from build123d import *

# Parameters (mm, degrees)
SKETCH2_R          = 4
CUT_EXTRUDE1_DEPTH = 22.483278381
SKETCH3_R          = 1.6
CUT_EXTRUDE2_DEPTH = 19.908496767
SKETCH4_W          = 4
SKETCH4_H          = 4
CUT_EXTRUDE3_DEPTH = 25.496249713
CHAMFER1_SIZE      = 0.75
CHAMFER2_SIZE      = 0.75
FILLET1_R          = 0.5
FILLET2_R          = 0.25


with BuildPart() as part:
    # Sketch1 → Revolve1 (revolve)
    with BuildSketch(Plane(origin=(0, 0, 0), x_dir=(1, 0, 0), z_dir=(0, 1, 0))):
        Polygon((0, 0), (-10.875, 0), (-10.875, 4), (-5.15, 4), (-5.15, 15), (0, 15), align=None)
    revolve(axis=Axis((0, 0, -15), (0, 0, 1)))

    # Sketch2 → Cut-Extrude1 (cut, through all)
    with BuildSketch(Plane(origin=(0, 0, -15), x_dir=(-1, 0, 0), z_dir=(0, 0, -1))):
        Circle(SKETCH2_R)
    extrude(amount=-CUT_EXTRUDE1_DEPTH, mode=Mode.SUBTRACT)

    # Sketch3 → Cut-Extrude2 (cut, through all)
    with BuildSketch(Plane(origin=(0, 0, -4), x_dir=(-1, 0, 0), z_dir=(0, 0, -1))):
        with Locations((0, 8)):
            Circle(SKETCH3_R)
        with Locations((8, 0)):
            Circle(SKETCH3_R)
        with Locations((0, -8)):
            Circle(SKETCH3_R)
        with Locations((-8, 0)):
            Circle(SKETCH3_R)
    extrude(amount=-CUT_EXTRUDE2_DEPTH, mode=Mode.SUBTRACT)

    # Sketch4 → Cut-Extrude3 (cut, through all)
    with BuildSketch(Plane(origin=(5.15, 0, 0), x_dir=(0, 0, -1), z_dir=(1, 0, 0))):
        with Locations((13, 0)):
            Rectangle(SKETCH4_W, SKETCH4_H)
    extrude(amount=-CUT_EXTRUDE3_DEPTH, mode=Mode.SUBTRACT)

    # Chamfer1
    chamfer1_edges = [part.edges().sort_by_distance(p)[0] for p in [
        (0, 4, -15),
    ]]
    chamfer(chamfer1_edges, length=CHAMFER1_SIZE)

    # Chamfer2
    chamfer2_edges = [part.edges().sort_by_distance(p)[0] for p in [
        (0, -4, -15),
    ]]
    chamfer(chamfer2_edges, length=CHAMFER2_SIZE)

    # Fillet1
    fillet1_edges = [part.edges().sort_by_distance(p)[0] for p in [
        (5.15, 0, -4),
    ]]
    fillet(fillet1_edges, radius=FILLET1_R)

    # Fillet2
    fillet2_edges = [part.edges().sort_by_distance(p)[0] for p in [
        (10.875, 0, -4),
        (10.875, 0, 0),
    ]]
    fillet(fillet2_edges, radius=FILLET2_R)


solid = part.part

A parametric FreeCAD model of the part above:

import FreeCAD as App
import Part
import Sketcher


def edges_at(feature, points):
    """Names of the edges that pass closest to the given points."""
    edges = feature.Shape.Edges
    near = lambda p: min(range(len(edges)), key=lambda i: edges[i].distToShape(Part.Vertex(*p))[0])
    return sorted({f"Edge{near(p) + 1}" for p in points})


def add_polygon(sketch, points):
    """Adds a closed chain of lines whose ends are joined by coincident constraints."""
    first, n = sketch.GeometryCount, len(points)
    for a, b in zip(points, points[1:] + points[:1]):
        sketch.addGeometry(Part.LineSegment(App.Vector(*a, 0), App.Vector(*b, 0)), False)
    for i in range(n):
        sketch.addConstraint(Sketcher.Constraint("Coincident", first + i, 2, first + (i + 1) % n, 1))

doc = App.newDocument("Part")
body = doc.addObject("PartDesign::Body", "Body")

sketch1 = body.newObject("Sketcher::SketchObject", "Sketch")
sketch1.AttachmentSupport = (doc.getObject("XZ_Plane"), [""])
sketch1.MapMode = "FlatFace"
add_polygon(sketch1, [(-10.875, 0), (0, 0), (0, -15), (-5.15, -15), (-5.15, -4), (-10.875, -4)])
sketch1.addConstraint(Sketcher.Constraint("Horizontal", 0))
sketch1.addConstraint(Sketcher.Constraint("Vertical", 1))
sketch1.addConstraint(Sketcher.Constraint("Horizontal", 2))
sketch1.addConstraint(Sketcher.Constraint("Vertical", 3))
sketch1.addConstraint(Sketcher.Constraint("Horizontal", 4))
sketch1.addConstraint(Sketcher.Constraint("Vertical", 5))
sketch1.addConstraint(Sketcher.Constraint("Coincident", 0, 2, -1, 1))
sketch1.addConstraint(Sketcher.Constraint("DistanceY", 1, 2, 1, 1, 15.0))
sketch1.addConstraint(Sketcher.Constraint("DistanceY", 3, 1, 3, 2, 11.0))
sketch1.addConstraint(Sketcher.Constraint("DistanceX", 2, 2, 2, 1, 5.15))
sketch1.addConstraint(Sketcher.Constraint("DistanceX", 0, 1, 0, 2, 10.875))
revolution = body.newObject("PartDesign::Revolution", "Revolution")
revolution.Profile = sketch1
revolution.ReferenceAxis = (sketch1, ["V_Axis"])
revolution.Angle = 360

sketch2 = body.newObject("Sketcher::SketchObject", "Sketch001")
sketch2.AttachmentSupport = (doc.getObject("XY_Plane"), [""])
sketch2.MapMode = "FlatFace"
sketch2.AttachmentOffset = App.Placement(App.Vector(0, 0, -15), App.Rotation())
sketch2.addGeometry(Part.Circle(App.Vector(0, 0, 0), App.Vector(0, 0, 1), 4), False)
sketch2.addConstraint(Sketcher.Constraint("Coincident", 0, 3, -1, 1))
sketch2.addConstraint(Sketcher.Constraint("Diameter", 0, 8.0))
pocket1 = body.newObject("PartDesign::Pocket", "Pocket")
pocket1.Profile = sketch2
pocket1.Type = "ThroughAll"
pocket1.Reversed = True

sketch3 = body.newObject("Sketcher::SketchObject", "Sketch002")
sketch3.AttachmentSupport = (doc.getObject("XY_Plane"), [""])
sketch3.MapMode = "FlatFace"
sketch3.AttachmentOffset = App.Placement(App.Vector(0, 0, -4), App.Rotation())
sketch3.addGeometry(Part.Circle(App.Vector(0, 8, 0), App.Vector(0, 0, 1), 1.6), False)
sketch3.addGeometry(Part.Circle(App.Vector(-8, 0, 0), App.Vector(0, 0, 1), 1.6), False)
sketch3.addGeometry(Part.Circle(App.Vector(0, -8, 0), App.Vector(0, 0, 1), 1.6), False)
sketch3.addGeometry(Part.Circle(App.Vector(8, 0, 0), App.Vector(0, 0, 1), 1.6), False)
sketch3.addConstraint(Sketcher.Constraint("Equal", 0, 1))
sketch3.addConstraint(Sketcher.Constraint("Equal", 1, 2))
sketch3.addConstraint(Sketcher.Constraint("Equal", 2, 3))
sketch3.addConstraint(Sketcher.Constraint("Symmetric", 0, 3, 2, 3, -1, 1))
sketch3.addConstraint(Sketcher.Constraint("Symmetric", 1, 3, 3, 3, -1, 1))
sketch3.addConstraint(Sketcher.Constraint("PointOnObject", 0, 3, -2))
sketch3.addConstraint(Sketcher.Constraint("PointOnObject", 1, 3, -1))
sketch3.addConstraint(Sketcher.Constraint("Diameter", 0, 3.2))
sketch3.addConstraint(Sketcher.Constraint("DistanceY", -1, 1, 0, 3, 8.0))
sketch3.addConstraint(Sketcher.Constraint("DistanceX", 1, 3, -1, 1, 8.0))
pocket2 = body.newObject("PartDesign::Pocket", "Pocket001")
pocket2.Profile = sketch3
pocket2.Type = "ThroughAll"
pocket2.Reversed = True

sketch4 = body.newObject("Sketcher::SketchObject", "Sketch003")
sketch4.AttachmentSupport = (doc.getObject("YZ_Plane"), [""])
sketch4.MapMode = "FlatFace"
sketch4.AttachmentOffset = App.Placement(App.Vector(0, 0, 5.15), App.Rotation())
add_polygon(sketch4, [(2, -11), (-2, -11), (-2, -15), (2, -15)])
sketch4.addConstraint(Sketcher.Constraint("Horizontal", 0))
sketch4.addConstraint(Sketcher.Constraint("Vertical", 1))
sketch4.addConstraint(Sketcher.Constraint("Horizontal", 2))
sketch4.addConstraint(Sketcher.Constraint("Vertical", 3))
sketch4.addConstraint(Sketcher.Constraint("Equal", 2, 1))
sketch4.addConstraint(Sketcher.Constraint("DistanceX", 0, 2, 0, 1, 4.0))
sketch4.addConstraint(Sketcher.Constraint("DistanceX", 0, 2, -1, 1, 2.0))
sketch4.addConstraint(Sketcher.Constraint("DistanceY", 0, 2, -1, 1, 11.0))
pocket3 = body.newObject("PartDesign::Pocket", "Pocket002")
pocket3.Profile = sketch4
pocket3.Type = "ThroughAll"
doc.recompute()

chamfer = body.newObject("PartDesign::Chamfer", "Chamfer")
chamfer.Base = (pocket3, edges_at(pocket3, [(0, 4, -15)]))
chamfer.Size = 0.75
doc.recompute()

chamfer2 = body.newObject("PartDesign::Chamfer", "Chamfer001")
chamfer2.Base = (chamfer, edges_at(chamfer, [(0, -4, -15)]))
chamfer2.Size = 0.75
doc.recompute()

fillet = body.newObject("PartDesign::Fillet", "Fillet")
fillet.Base = (chamfer2, edges_at(chamfer2, [(5.15, 0, -4)]))
fillet.Radius = 0.5
doc.recompute()

fillet2 = body.newObject("PartDesign::Fillet", "Fillet001")
fillet2.Base = (fillet, edges_at(fillet, [(10.875, 0, -4), (10.875, 0, 0)]))
fillet2.Radius = 0.25

doc.recompute()
